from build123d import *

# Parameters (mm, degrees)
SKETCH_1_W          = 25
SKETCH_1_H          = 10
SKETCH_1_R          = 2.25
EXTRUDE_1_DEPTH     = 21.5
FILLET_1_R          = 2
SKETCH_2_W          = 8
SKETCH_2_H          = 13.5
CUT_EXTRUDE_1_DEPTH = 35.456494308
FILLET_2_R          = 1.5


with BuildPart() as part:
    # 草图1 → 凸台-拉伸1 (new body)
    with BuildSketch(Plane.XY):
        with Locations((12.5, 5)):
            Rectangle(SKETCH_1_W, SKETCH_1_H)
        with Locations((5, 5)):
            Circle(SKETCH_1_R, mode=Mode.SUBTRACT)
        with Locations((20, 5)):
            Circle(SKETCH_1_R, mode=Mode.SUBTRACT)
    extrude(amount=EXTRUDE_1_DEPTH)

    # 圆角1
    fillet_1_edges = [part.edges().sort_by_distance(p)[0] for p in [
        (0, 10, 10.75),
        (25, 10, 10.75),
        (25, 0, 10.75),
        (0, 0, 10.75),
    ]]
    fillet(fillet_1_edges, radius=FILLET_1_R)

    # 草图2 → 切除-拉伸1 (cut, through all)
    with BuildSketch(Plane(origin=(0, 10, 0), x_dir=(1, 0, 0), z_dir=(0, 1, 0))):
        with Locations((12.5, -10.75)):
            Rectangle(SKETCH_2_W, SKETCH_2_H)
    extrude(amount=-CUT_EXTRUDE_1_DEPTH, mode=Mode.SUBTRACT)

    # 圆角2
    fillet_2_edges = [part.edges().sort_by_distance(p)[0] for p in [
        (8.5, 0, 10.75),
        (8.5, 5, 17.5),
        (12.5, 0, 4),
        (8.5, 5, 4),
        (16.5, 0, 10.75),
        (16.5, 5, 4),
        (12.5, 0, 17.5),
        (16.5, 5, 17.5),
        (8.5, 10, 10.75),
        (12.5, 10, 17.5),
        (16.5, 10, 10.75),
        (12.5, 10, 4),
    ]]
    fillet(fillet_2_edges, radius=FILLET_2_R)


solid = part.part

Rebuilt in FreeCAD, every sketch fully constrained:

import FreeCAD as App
import Part
import Sketcher

V = App.Vector


def edges_at(feature, points):
    """Names of the edges that pass closest to the given points."""
    edges = feature.Shape.Edges
    near = lambda p: min(range(len(edges)), key=lambda i: edges[i].distToShape(Part.Vertex(*p))[0])
    return sorted({f"Edge{near(p) + 1}" for p in points})

doc = App.newDocument("Part")
body = doc.addObject("PartDesign::Body", "Body")

# Sketch on XY plane
sketch1 = body.newObject("Sketcher::SketchObject", "Sketch")
sketch1.AttachmentSupport = (doc.getObject("XY_Plane"), [""])
sketch1.MapMode = "FlatFace"
sketch1.addGeometry([
    Part.LineSegment(V(0, 10, 0), V(0, 0, 0)),  # 0
    Part.LineSegment(V(0, 0, 0), V(25, 0, 0)),  # 1
    Part.LineSegment(V(25, 0, 0), V(25, 10, 0)),  # 2
    Part.LineSegment(V(25, 10, 0), V(0, 10, 0)),  # 3
    Part.Circle(V(5, 5, 0), V(0, 0, 1), 2.2),  # 4
    Part.Circle(V(20, 5, 0), V(0, 0, 1), 2.2),  # 5
], False)
sketch1.addConstraint([
    Sketcher.Constraint("Coincident", 0, 2, 1, 1),
    Sketcher.Constraint("Coincident", 1, 2, 2, 1),
    Sketcher.Constraint("Coincident", 2, 2, 3, 1),
    Sketcher.Constraint("Coincident", 3, 2, 0, 1),
    Sketcher.Constraint("Vertical", 0),
    Sketcher.Constraint("Horizontal", 1),
    Sketcher.Constraint("Vertical", 2),
    Sketcher.Constraint("Horizontal", 3),
    Sketcher.Constraint("Coincident", 0, 2, -1, 1),
    Sketcher.Constraint("Equal", 4, 5),
    Sketcher.Constraint("Horizontal", 4, 3, 5, 3),
    Sketcher.Constraint("Diameter", 4, 4.5),
    Sketcher.Constraint("DistanceX", 1, 1, 1, 2, 25.0),
    Sketcher.Constraint("DistanceY", 0, 2, 0, 1, 10.0),
    Sketcher.Constraint("DistanceX", -1, 1, 4, 3, 5.0),
    Sketcher.Constraint("DistanceY", -1, 1, 4, 3, 5.0),
    Sketcher.Constraint("DistanceX", -1, 1, 5, 3, 20.0),
])
pad1 = body.newObject("PartDesign::Pad", "Pad")
pad1.Profile = sketch1
pad1.Length = 21.5
doc.recompute()

fillet = body.newObject("PartDesign::Fillet", "Fillet")
fillet.Base = (pad1, edges_at(pad1, [
    (0, 10, 10.75),
    (25, 10, 10.75),
    (25, 0, 10.75),
    (0, 0, 10.75),
]))
fillet.Radius = 2

# Sketch on XZ plane
sketch2 = body.newObject("Sketcher::SketchObject", "Sketch001")
sketch2.AttachmentSupport = (doc.getObject("XZ_Plane"), [""])
sketch2.MapMode = "FlatFace"
sketch2.AttachmentOffset = App.Placement(V(0, 0, -10), App.Rotation())
sketch2.addGeometry([
    Part.LineSegment(V(8, 4, 0), V(8, 18, 0)),
    Part.LineSegment(V(8, 18, 0), V(16, 18, 0)),
    Part.LineSegment(V(16, 18, 0), V(16, 4, 0)),
    Part.LineSegment(V(16, 4, 0), V(8, 4, 0)),
], False)
sketch2.addConstraint([
    Sketcher.Constraint("Coincident", 0, 2, 1, 1),
    Sketcher.Constraint("Coincident", 1, 2, 2, 1),
    Sketcher.Constraint("Coincident", 2, 2, 3, 1),
    Sketcher.Constraint("Coincident", 3, 2, 0, 1),
    Sketcher.Constraint("Vertical", 0),
    Sketcher.Constraint("Horizontal", 1),
    Sketcher.Constraint("Vertical", 2),
    Sketcher.Constraint("Horizontal", 3),
    Sketcher.Constraint("DistanceX", 1, 1, 1, 2, 8.0),
    Sketcher.Constraint("DistanceY", 0, 1, 0, 2, 13.5),
    Sketcher.Constraint("DistanceY", -1, 1, 2, 2, 4.0),
    Sketcher.Constraint("DistanceX", -1, 1, 0, 2, 8.5),
])
pocket1 = body.newObject("PartDesign::Pocket", "Pocket")
pocket1.Profile = sketch2
pocket1.Type = "ThroughAll"
pocket1.Reversed = True
doc.recompute()

fillet2 = body.newObject("PartDesign::Fillet", "Fillet001")
fillet2.Base = (pocket1, edges_at(pocket1, [
    (8.5, 0, 10.75),
    (8.5, 5, 17.5),
    (12.5, 0, 4),
    (8.5, 5, 4),
    (16.5, 0, 10.75),
    (16.5, 5, 4),
    (12.5, 0, 17.5),
    (16.5, 5, 17.5),
    (8.5, 10, 10.75),
    (12.5, 10, 17.5),
    (16.5, 10, 10.75),
    (12.5, 10, 4),
]))
fillet2.Radius = 1.5

doc.recompute()
